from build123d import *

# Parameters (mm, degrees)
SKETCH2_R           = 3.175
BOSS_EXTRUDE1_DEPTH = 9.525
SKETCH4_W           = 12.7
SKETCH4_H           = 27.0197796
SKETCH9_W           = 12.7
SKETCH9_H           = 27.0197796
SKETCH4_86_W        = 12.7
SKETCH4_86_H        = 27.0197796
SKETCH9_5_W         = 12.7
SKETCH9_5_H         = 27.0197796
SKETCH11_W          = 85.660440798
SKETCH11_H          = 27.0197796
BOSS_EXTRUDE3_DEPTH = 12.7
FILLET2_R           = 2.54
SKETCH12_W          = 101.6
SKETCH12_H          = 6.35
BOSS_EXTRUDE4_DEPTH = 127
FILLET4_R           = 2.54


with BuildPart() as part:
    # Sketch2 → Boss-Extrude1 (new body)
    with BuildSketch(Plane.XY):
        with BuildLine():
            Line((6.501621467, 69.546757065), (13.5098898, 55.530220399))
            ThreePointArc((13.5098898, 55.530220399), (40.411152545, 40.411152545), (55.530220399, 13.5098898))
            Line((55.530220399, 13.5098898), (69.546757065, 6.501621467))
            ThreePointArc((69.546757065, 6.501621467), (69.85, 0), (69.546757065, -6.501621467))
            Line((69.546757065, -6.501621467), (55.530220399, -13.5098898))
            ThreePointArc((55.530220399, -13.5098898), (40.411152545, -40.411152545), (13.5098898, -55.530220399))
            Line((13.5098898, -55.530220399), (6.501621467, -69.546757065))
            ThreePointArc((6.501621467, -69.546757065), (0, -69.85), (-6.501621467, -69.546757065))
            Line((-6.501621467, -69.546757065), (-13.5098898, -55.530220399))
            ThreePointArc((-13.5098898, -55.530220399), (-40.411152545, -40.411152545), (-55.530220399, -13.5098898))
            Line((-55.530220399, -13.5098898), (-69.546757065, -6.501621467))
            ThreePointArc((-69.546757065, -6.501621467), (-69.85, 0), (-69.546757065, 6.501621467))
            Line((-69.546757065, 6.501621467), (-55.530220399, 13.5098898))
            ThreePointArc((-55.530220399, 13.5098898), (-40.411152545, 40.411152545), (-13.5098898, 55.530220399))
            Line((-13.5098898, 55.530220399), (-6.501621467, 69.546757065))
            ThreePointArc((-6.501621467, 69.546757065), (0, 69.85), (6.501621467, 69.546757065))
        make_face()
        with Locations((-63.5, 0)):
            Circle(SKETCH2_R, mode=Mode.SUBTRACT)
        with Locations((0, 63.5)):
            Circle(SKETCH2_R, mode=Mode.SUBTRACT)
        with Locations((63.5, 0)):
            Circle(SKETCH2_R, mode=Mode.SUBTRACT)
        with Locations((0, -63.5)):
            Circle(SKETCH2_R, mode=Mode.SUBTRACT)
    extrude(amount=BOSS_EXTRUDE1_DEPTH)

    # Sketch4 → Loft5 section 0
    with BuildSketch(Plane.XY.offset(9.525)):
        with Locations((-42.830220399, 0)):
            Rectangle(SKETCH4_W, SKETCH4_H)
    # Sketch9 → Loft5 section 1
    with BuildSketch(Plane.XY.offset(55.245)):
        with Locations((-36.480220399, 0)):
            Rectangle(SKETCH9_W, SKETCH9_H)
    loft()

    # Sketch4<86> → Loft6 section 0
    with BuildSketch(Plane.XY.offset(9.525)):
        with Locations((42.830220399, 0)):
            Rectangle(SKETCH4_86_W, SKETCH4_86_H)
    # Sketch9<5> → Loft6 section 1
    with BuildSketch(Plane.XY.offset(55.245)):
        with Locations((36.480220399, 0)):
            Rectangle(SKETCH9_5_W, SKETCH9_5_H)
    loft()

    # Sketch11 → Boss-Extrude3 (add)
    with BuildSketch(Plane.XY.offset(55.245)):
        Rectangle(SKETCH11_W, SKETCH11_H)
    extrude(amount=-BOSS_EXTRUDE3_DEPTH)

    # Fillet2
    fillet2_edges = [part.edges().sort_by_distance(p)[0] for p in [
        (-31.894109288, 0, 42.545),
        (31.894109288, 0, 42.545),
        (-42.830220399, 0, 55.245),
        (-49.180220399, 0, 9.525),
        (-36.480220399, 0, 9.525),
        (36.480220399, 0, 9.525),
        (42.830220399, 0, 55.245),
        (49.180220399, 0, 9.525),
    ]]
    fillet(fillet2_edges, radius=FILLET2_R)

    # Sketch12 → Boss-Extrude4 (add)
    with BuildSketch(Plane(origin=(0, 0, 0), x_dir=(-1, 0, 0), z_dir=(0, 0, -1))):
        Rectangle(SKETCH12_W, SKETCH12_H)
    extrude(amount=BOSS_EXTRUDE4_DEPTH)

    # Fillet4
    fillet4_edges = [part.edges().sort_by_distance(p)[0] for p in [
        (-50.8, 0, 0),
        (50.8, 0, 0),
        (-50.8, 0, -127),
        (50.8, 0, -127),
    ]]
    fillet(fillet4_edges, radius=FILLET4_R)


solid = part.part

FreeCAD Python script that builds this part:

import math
import FreeCAD as App
import Part
import Sketcher
Q = App.Units.Quantity


def edges_at(feature, points):
    """Names of the edges that pass closest to the given points."""
    edges = feature.Shape.Edges
    near = lambda p: min(range(len(edges)), key=lambda i: edges[i].distToShape(Part.Vertex(*p))[0])
    return sorted({f"Edge{near(p) + 1}" for p in points})


def add_polygon(sketch, points):
    """Adds a closed chain of lines whose ends are joined by coincident constraints."""
    first, n = sketch.GeometryCount, len(points)
    for a, b in zip(points, points[1:] + points[:1]):
        sketch.addGeometry(Part.LineSegment(App.Vector(*a, 0), App.Vector(*b, 0)), False)
    for i in range(n):
        sketch.addConstraint(Sketcher.Constraint("Coincident", first + i, 2, first + (i + 1) % n, 1))

doc = App.newDocument("Part")
body = doc.addObject("PartDesign::Body", "Body")

# Sketch on XY plane
sketch1 = body.newObject("Sketcher::SketchObject", "Sketch")
sketch1.AttachmentSupport = (doc.getObject("XY_Plane"), [""])
sketch1.MapMode = "FlatFace"
sketch1.addGeometry([
    Part.LineSegment(App.Vector(13.5, 55.5, 0), App.Vector(6.5, 69.5, 0)),  # 0
    Part.ArcOfCircle(Part.Circle(App.Vector(0, 0, 0), App.Vector(0, 0, 1), 69.8), math.radians(84.66), math.radians(95.34)),  # 1
    Part.LineSegment(App.Vector(-6.5, 69.5, 0), App.Vector(-13.5, 55.5, 0)),  # 2
    Part.ArcOfCircle(Part.Circle(App.Vector(0, 0, 0), App.Vector(0, 0, 1), 57.1), math.radians(104), math.radians(166)),  # 3
    Part.LineSegment(App.Vector(-55.5, 13.5, 0), App.Vector(-69.5, 6.5, 0)),  # 4
    Part.ArcOfCircle(Part.Circle(App.Vector(0, 0, 0), App.Vector(0, 0, 1), 69.8), math.radians(174.66), math.radians(185.34)),  # 5
    Part.LineSegment(App.Vector(-69.5, -6.5, 0), App.Vector(-55.5, -13.5, 0)),  # 6
    Part.ArcOfCircle(Part.Circle(App.Vector(0, 0, 0), App.Vector(0, 0, 1), 57.1), math.radians(-166), math.radians(-104)),  # 7
    Part.LineSegment(App.Vector(-13.5, -55.5, 0), App.Vector(-6.5, -69.5, 0)),  # 8
    Part.ArcOfCircle(Part.Circle(App.Vector(0, 0, 0), App.Vector(0, 0, 1), 69.8), math.radians(-95.34), math.radians(-84.66)),  # 9
    Part.LineSegment(App.Vector(6.5, -69.5, 0), App.Vector(13.5, -55.5, 0)),  # 10
    Part.ArcOfCircle(Part.Circle(App.Vector(0, 0, 0), App.Vector(0, 0, 1), 57.1), math.radians(-76), math.radians(-14)),  # 11
    Part.LineSegment(App.Vector(55.5, -13.5, 0), App.Vector(69.5, -6.5, 0)),  # 12
    Part.ArcOfCircle(Part.Circle(App.Vector(0, 0, 0), App.Vector(0, 0, 1), 69.8), math.radians(-5.34), math.radians(5.34)),  # 13
    Part.LineSegment(App.Vector(69.5, 6.5, 0), App.Vector(55.5, 13.5, 0)),  # 14
    Part.ArcOfCircle(Part.Circle(App.Vector(0, 0, 0), App.Vector(0, 0, 1), 57.1), math.radians(14), math.radians(76)),  # 15
    Part.Circle(App.Vector(0, -63.5, 0), App.Vector(0, 0, 1), 3.2),  # 16
    Part.Circle(App.Vector(63.5, 0, 0), App.Vector(0, 0, 1), 3.2),  # 17
    Part.Circle(App.Vector(-63.5, 0, 0), App.Vector(0, 0, 1), 3.2),  # 18
    Part.Circle(App.Vector(0, 63.5, 0), App.Vector(0, 0, 1), 3.2),  # 19
], False)
sketch1.addConstraint([
    Sketcher.Constraint("Coincident", 0, 2, 1, 1),
    Sketcher.Constraint("Coincident", 1, 2, 2, 1),
    Sketcher.Constraint("Coincident", 2, 2, 3, 1),
    Sketcher.Constraint("Coincident", 3, 2, 4, 1),
    Sketcher.Constraint("Coincident", 4, 2, 5, 1),
    Sketcher.Constraint("Coincident", 5, 2, 6, 1),
    Sketcher.Constraint("Coincident", 6, 2, 7, 1),
    Sketcher.Constraint("Coincident", 7, 2, 8, 1),
    Sketcher.Constraint("Coincident", 8, 2, 9, 1),
    Sketcher.Constraint("Coincident", 9, 2, 10, 1),
    Sketcher.Constraint("Coincident", 10, 2, 11, 1),
    Sketcher.Constraint("Coincident", 11, 2, 12, 1),
    Sketcher.Constraint("Coincident", 12, 2, 13, 1),
    Sketcher.Constraint("Coincident", 13, 2, 14, 1),
    Sketcher.Constraint("Coincident", 14, 2, 15, 1),
    Sketcher.Constraint("Coincident", 15, 2, 0, 1),
    Sketcher.Constraint("Coincident", 1, 3, -1, 1),
    Sketcher.Constraint("Coincident", 3, 3, -1, 1),
    Sketcher.Constraint("Coincident", 5, 3, -1, 1),
    Sketcher.Constraint("Coincident", 7, 3, -1, 1),
    Sketcher.Constraint("Coincident", 9, 3, -1, 1),
    Sketcher.Constraint("Coincident", 11, 3, -1, 1),
    Sketcher.Constraint("Coincident", 13, 3, -1, 1),
    Sketcher.Constraint("Coincident", 15, 3, -1, 1),
    Sketcher.Constraint("Equal", 1, 5),
    Sketcher.Constraint("Equal", 3, 7),
    Sketcher.Constraint("Equal", 5, 9),
    Sketcher.Constraint("Equal", 7, 11),
    Sketcher.Constraint("Equal", 9, 13),
    Sketcher.Constraint("Equal", 11, 15),
    Sketcher.Constraint("Equal", 16, 17),
    Sketcher.Constraint("Equal", 17, 18),
    Sketcher.Constraint("Equal", 18, 19),
    Sketcher.Constraint("Symmetric", 17, 3, 18, 3, -1, 1),
    Sketcher.Constraint("Symmetric", 16, 3, 19, 3, -1, 1),
    Sketcher.Constraint("PointOnObject", 16, 3, -2),
    Sketcher.Constraint("PointOnObject", 17, 3, -1),
    Sketcher.Constraint("Perpendicular", 0, 4),
    Sketcher.Constraint("Perpendicular", 2, 6),
    Sketcher.Constraint("Perpendicular", 4, 8),
    Sketcher.Constraint("Perpendicular", 6, 10),
    Sketcher.Constraint("Perpendicular", 8, 12),
    Sketcher.Constraint("Perpendicular", 10, 14),
    Sketcher.Constraint("Horizontal", 0, 2, 1, 2),
    Sketcher.Constraint("Horizontal", 8, 2, 9, 2),
    Sketcher.Constraint("Horizontal", 7, 2, 10, 2),
    Sketcher.Constraint("Horizontal", 6, 2, 11, 2),
    Sketcher.Constraint("Horizontal", 4, 2, 13, 2),
    Sketcher.Constraint("Vertical", 4, 2, 5, 2),
    Sketcher.Constraint("Vertical", 2, 2, 7, 2),
    Sketcher.Constraint("Equal", 2, 4),
    Sketcher.Constraint("Diameter", 16, Q("0.25 in")),
    Sketcher.Constraint("Radius", 1, Q("2.75 in")),
    Sketcher.Constraint("Radius", 3, Q("2.25 in")),
    Sketcher.Constraint("DistanceY", 16, 3, -1, 1, Q("2.5 in")),
    Sketcher.Constraint("DistanceX", -1, 1, 17, 3, Q("2.5 in")),
    Sketcher.Constraint("DistanceX", -1, 1, 0, 2, Q("6.501621 mm")),
    Sketcher.Constraint("DistanceX", 2, 2, -1, 1, Q("13.50989 mm")),
])
pad1 = body.newObject("PartDesign::Pad", "Pad")
pad1.Profile = sketch1
pad1.Length = Q("0.375 in")

# Sketch on XY plane
sketch2 = body.newObject("Sketcher::SketchObject", "Sketch001")
sketch2.AttachmentSupport = (doc.getObject("XY_Plane"), [""])
sketch2.MapMode = "FlatFace"
sketch2.AttachmentOffset = App.Placement(App.Vector(0, 0, 0.375 * 25.4), App.Rotation())
add_polygon(sketch2, [(-49, 14), (-49, -14), (-36, -14), (-36, 14)])  # lines 0-3
sketch2.addConstraint([
    Sketcher.Constraint("Vertical", 0),
    Sketcher.Constraint("Horizontal", 1),
    Sketcher.Constraint("Vertical", 2),
    Sketcher.Constraint("Horizontal", 3),
    Sketcher.Constraint("DistanceX", 1, 1, 1, 2, Q("0.5 in")),
    Sketcher.Constraint("DistanceY", 0, 2, 0, 1, Q("27.01978 mm")),
    Sketcher.Constraint("DistanceX", 0, 2, -1, 1, Q("49.18022 mm")),
    Sketcher.Constraint("DistanceY", 0, 2, -1, 1, Q("13.50989 mm")),
])

# Sketch on XY plane
sketch3 = body.newObject("Sketcher::SketchObject", "Sketch002")
sketch3.AttachmentSupport = (doc.getObject("XY_Plane"), [""])
sketch3.MapMode = "FlatFace"
sketch3.AttachmentOffset = App.Placement(App.Vector(0, 0, 2.175 * 25.4), App.Rotation())
add_polygon(sketch3, [(-43, 14), (-43, -14), (-30, -14), (-30, 14)])  # lines 0-3
sketch3.addConstraint([
    Sketcher.Constraint("Vertical", 0),
    Sketcher.Constraint("Horizontal", 1),
    Sketcher.Constraint("Vertical", 2),
    Sketcher.Constraint("Horizontal", 3),
    Sketcher.Constraint("DistanceX", 1, 1, 1, 2, Q("0.5 in")),
    Sketcher.Constraint("DistanceY", 0, 2, 0, 1, Q("27.01978 mm")),
    Sketcher.Constraint("DistanceX", 0, 2, -1, 1, Q("42.83022 mm")),
    Sketcher.Constraint("DistanceY", 0, 2, -1, 1, Q("13.50989 mm")),
])

additiveloft = body.newObject("PartDesign::AdditiveLoft", "AdditiveLoft")
additiveloft.Profile = sketch2
additiveloft.Sections = [sketch3]

# Sketch on XY plane
sketch4 = body.newObject("Sketcher::SketchObject", "Sketch003")
sketch4.AttachmentSupport = (doc.getObject("XY_Plane"), [""])
sketch4.MapMode = "FlatFace"
sketch4.AttachmentOffset = App.Placement(App.Vector(0, 0, 0.375 * 25.4), App.Rotation())
add_polygon(sketch4, [(36, 14), (36, -14), (49, -14), (49, 14)])  # lines 0-3
sketch4.addConstraint([
    Sketcher.Constraint("Vertical", 0),
    Sketcher.Constraint("Horizontal", 1),
    Sketcher.Constraint("Vertical", 2),
    Sketcher.Constraint("Horizontal", 3),
    Sketcher.Constraint("DistanceX", 1, 1, 1, 2, Q("0.5 in")),
    Sketcher.Constraint("DistanceY", 0, 2, 0, 1, Q("27.01978 mm")),
    Sketcher.Constraint("DistanceX", -1, 1, 0, 2, Q("36.48022 mm")),
    Sketcher.Constraint("DistanceY", 0, 2, -1, 1, Q("13.50989 mm")),
])

# Sketch on XY plane
sketch5 = body.newObject("Sketcher::SketchObject", "Sketch004")
sketch5.AttachmentSupport = (doc.getObject("XY_Plane"), [""])
sketch5.MapMode = "FlatFace"
sketch5.AttachmentOffset = App.Placement(App.Vector(0, 0, 2.175 * 25.4), App.Rotation())
add_polygon(sketch5, [(30, 14), (30, -14), (43, -14), (43, 14)])  # lines 0-3
sketch5.addConstraint([
    Sketcher.Constraint("Vertical", 0),
    Sketcher.Constraint("Horizontal", 1),
    Sketcher.Constraint("Vertical", 2),
    Sketcher.Constraint("Horizontal", 3),
    Sketcher.Constraint("DistanceX", 1, 1, 1, 2, Q("0.5 in")),
    Sketcher.Constraint("DistanceY", 0, 2, 0, 1, Q("27.01978 mm")),
    Sketcher.Constraint("DistanceX", -1, 1, 0, 2, Q("30.13022 mm")),
    Sketcher.Constraint("DistanceY", 0, 2, -1, 1, Q("13.50989 mm")),
])

additiveloft2 = body.newObject("PartDesign::AdditiveLoft", "AdditiveLoft001")
additiveloft2.Profile = sketch4
additiveloft2.Sections = [sketch5]

# Sketch on XY plane
sketch6 = body.newObject("Sketcher::SketchObject", "Sketch005")
sketch6.AttachmentSupport = (doc.getObject("XY_Plane"), [""])
sketch6.MapMode = "FlatFace"
sketch6.AttachmentOffset = App.Placement(App.Vector(0, 0, 2.175 * 25.4), App.Rotation())
add_polygon(sketch6, [(-43, 14), (-43, -14), (43, -14), (43, 14)])  # lines 0-3
sketch6.addConstraint([
    Sketcher.Constraint("Vertical", 0),
    Sketcher.Constraint("Horizontal", 1),
    Sketcher.Constraint("Vertical", 2),
    Sketcher.Constraint("Horizontal", 3),
    Sketcher.Constraint("Symmetric", 0, 2, 2, 2, -1, 1),
    Sketcher.Constraint("DistanceX", 1, 1, 1, 2, Q("85.660441 mm")),
    Sketcher.Constraint("DistanceY", 0, 2, 0, 1, Q("27.01978 mm")),
])
pad2 = body.newObject("PartDesign::Pad", "Pad001")
pad2.Profile = sketch6
pad2.Length = Q("0.5 in")
pad2.Reversed = True
doc.recompute()

fillet = body.newObject("PartDesign::Fillet", "Fillet")
fillet.Base = (pad2, edges_at(pad2, [
    (-31.894, 0, 42.545),
    (31.894, 0, 42.545),
    (-42.83, 0, 55.245),
    (-49.18, 0, 9.525),
    (-36.48, 0, 9.525),
    (36.48, 0, 9.525),
    (42.83, 0, 55.245),
    (49.18, 0, 9.525),
]))
fillet.Radius = Q("0.1 in")

# Sketch on XY plane
sketch7 = body.newObject("Sketcher::SketchObject", "Sketch006")
sketch7.AttachmentSupport = (doc.getObject("XY_Plane"), [""])
sketch7.MapMode = "FlatFace"
add_polygon(sketch7, [(51, 3), (51, -3), (-51, -3), (-51, 3)])  # lines 0-3
sketch7.addConstraint([
    Sketcher.Constraint("Vertical", 0),
    Sketcher.Constraint("Horizontal", 1),
    Sketcher.Constraint("Vertical", 2),
    Sketcher.Constraint("Horizontal", 3),
    Sketcher.Constraint("Symmetric", 0, 2, 2, 2, -1, 1),
    Sketcher.Constraint("DistanceX", 1, 2, 1, 1, Q("4 in")),
    Sketcher.Constraint("DistanceY", 0, 2, 0, 1, Q("0.25 in")),
])
pad3 = body.newObject("PartDesign::Pad", "Pad002")
pad3.Profile = sketch7
pad3.Length = Q("5 in")
pad3.Reversed = True
doc.recompute()

fillet2 = body.newObject("PartDesign::Fillet", "Fillet001")
fillet2.Base = (pad3, edges_at(pad3, [
    (-50.8, 0, 0),
    (50.8, 0, 0),
    (-50.8, 0, -127),
    (50.8, 0, -127),
]))
fillet2.Radius = Q("0.1 in")

doc.recompute()
